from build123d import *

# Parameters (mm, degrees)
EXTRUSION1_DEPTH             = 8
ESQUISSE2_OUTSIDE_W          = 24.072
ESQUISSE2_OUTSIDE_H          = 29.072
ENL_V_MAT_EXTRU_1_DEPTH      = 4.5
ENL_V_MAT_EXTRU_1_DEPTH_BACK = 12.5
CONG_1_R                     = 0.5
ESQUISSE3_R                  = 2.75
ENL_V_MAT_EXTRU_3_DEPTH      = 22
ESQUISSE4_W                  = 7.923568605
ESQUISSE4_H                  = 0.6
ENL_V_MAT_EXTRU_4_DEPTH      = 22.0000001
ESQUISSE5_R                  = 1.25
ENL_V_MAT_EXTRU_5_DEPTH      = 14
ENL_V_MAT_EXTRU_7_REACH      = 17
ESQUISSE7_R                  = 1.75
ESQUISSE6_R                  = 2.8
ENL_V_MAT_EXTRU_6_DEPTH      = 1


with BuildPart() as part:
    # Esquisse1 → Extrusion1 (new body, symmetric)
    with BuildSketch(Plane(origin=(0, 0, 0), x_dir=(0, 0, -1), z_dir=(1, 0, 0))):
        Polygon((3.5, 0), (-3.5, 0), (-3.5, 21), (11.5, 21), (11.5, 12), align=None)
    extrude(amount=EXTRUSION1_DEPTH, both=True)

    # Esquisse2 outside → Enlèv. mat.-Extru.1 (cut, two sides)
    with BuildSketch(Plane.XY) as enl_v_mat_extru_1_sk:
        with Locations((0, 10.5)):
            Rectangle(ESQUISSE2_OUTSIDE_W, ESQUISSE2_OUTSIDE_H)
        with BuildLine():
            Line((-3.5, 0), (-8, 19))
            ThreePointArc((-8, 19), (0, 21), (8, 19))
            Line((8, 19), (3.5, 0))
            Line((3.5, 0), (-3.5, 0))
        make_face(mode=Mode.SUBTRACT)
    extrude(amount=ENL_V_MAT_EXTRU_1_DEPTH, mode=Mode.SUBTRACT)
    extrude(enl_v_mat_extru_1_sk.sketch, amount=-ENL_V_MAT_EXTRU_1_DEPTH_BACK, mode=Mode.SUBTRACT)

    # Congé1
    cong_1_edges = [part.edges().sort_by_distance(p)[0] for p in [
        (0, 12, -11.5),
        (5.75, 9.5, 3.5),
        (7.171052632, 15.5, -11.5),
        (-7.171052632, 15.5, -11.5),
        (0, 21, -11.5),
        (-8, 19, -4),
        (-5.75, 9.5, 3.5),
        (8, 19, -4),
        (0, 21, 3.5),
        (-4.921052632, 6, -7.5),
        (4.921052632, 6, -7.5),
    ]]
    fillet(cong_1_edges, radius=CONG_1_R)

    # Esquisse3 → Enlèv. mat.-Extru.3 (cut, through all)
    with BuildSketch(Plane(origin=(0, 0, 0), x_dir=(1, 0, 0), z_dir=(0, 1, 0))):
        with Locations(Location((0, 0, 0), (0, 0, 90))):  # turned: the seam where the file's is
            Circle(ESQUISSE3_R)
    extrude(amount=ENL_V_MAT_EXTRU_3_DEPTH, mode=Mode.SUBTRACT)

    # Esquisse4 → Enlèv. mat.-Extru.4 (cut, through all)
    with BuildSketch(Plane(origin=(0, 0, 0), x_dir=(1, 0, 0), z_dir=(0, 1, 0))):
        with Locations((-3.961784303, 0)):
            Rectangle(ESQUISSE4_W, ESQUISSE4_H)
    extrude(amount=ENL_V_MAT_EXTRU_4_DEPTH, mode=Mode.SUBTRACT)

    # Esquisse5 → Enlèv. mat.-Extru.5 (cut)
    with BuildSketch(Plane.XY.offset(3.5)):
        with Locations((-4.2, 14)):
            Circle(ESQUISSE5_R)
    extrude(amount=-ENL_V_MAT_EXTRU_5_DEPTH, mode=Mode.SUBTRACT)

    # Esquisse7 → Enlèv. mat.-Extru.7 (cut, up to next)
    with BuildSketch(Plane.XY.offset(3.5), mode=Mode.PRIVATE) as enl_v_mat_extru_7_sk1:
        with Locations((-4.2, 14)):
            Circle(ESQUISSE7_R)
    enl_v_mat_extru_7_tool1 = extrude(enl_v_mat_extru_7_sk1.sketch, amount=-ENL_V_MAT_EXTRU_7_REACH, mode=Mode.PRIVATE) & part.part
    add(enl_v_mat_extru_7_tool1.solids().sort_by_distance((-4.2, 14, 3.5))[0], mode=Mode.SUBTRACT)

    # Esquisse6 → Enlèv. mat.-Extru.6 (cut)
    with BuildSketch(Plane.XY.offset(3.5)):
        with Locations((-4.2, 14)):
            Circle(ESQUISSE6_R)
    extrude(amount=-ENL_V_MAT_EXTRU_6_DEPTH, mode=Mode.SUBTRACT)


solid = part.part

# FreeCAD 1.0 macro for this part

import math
import FreeCAD as App
import Part
import Sketcher


def edges_at(feature, points):
    """Names of the edges that pass closest to the given points."""
    edges = feature.Shape.Edges
    near = lambda p: min(range(len(edges)), key=lambda i: edges[i].distToShape(Part.Vertex(*p))[0])
    return sorted({f"Edge{near(p) + 1}" for p in points})


def add_polygon(sketch, points):
    """Adds a closed chain of lines whose ends are joined by coincident constraints."""
    first, n = sketch.GeometryCount, len(points)
    for a, b in zip(points, points[1:] + points[:1]):
        sketch.addGeometry(Part.LineSegment(App.Vector(*a, 0), App.Vector(*b, 0)), False)
    for i in range(n):
        sketch.addConstraint(Sketcher.Constraint("Coincident", first + i, 2, first + (i + 1) % n, 1))

doc = App.newDocument("Part")
body = doc.addObject("PartDesign::Body", "Body")

# Sketch on YZ plane
sketch1 = body.newObject("Sketcher::SketchObject", "Sketch")
sketch1.AttachmentSupport = (doc.getObject("YZ_Plane"), [""])
sketch1.MapMode = "FlatFace"
add_polygon(sketch1, [(0, 4), (0, -4), (12, -12), (21, -12), (21, 4)])  # lines 0-4
sketch1.addConstraint([
    Sketcher.Constraint("Vertical", 0),
    Sketcher.Constraint("Horizontal", 2),
    Sketcher.Constraint("Vertical", 3),
    Sketcher.Constraint("Horizontal", 4),
    Sketcher.Constraint("Symmetric", 0, 2, 4, 2, -1, 1),
    Sketcher.Constraint("DistanceX", 2, 1, 2, 2, 9.0),
    Sketcher.Constraint("DistanceX", 4, 2, 4, 1, 21.0),
    Sketcher.Constraint("DistanceY", 0, 2, 0, 1, 7.0),
    Sketcher.Constraint("DistanceY", 3, 1, 3, 2, 15.0),
])
pad1 = body.newObject("PartDesign::Pad", "Pad")
pad1.Profile = sketch1
pad1.Length = 16
pad1.Midplane = True

# Sketch on XY plane
sketch2 = body.newObject("Sketcher::SketchObject", "Sketch001")
sketch2.AttachmentSupport = (doc.getObject("XY_Plane"), [""])
sketch2.MapMode = "FlatFace"
add_polygon(sketch2, [(-12, 25), (-12, -4), (12, -4), (12, 25)])  # lines 0-3
sketch2.addGeometry(Part.LineSegment(App.Vector(4, 0, 0), App.Vector(-4, 0, 0)), False)  # 4
sketch2.addGeometry(Part.LineSegment(App.Vector(-4, 0, 0), App.Vector(-8, 19, 0)), False)  # 5
sketch2.addGeometry(Part.ArcOfCircle(Part.Circle(App.Vector(0, 4, 0), App.Vector(0, 0, 1), 17), math.radians(62), math.radians(118)), False)  # 6
sketch2.addGeometry(Part.LineSegment(App.Vector(8, 19, 0), App.Vector(4, 0, 0)), False)  # 7
sketch2.addConstraint([
    Sketcher.Constraint("Coincident", 4, 2, 5, 1),
    Sketcher.Constraint("Coincident", 5, 2, 6, 2),
    Sketcher.Constraint("Coincident", 6, 1, 7, 1),
    Sketcher.Constraint("Coincident", 7, 2, 4, 1),
    Sketcher.Constraint("Vertical", 0),
    Sketcher.Constraint("Horizontal", 1),
    Sketcher.Constraint("Vertical", 2),
    Sketcher.Constraint("Horizontal", 3),
    Sketcher.Constraint("Horizontal", 4),
    Sketcher.Constraint("Symmetric", 4, 2, 7, 2, -1, 1),
    Sketcher.Constraint("Symmetric", 5, 2, 6, 1, -2),
    Sketcher.Constraint("Radius", 6, 17.0),
    Sketcher.Constraint("DistanceX", 4, 2, 4, 1, 7.0),
    Sketcher.Constraint("DistanceY", -1, 1, 6, 3, 4.0),
    Sketcher.Constraint("DistanceX", 5, 2, -1, 1, 8.0),
    Sketcher.Constraint("DistanceX", 1, 1, 1, 2, 24.072),
    Sketcher.Constraint("DistanceY", 0, 2, 0, 1, 29.072),
    Sketcher.Constraint("DistanceX", 0, 2, -1, 1, 12.036),
    Sketcher.Constraint("DistanceY", 0, 2, -1, 1, 4.036),
])
pocket1 = body.newObject("PartDesign::Pocket", "Pocket")
pocket1.Profile = sketch2
pocket1.Type = "ThroughAll"
pocket1.Midplane = True
doc.recompute()

fillet = body.newObject("PartDesign::Fillet", "Fillet")
fillet.Base = (pocket1, edges_at(pocket1, [
    (0, 12, -11.5),
    (5.75, 9.5, 3.5),
    (7.171, 15.5, -11.5),
    (-7.171, 15.5, -11.5),
    (0, 21, -11.5),
    (-8, 19, -4),
    (-5.75, 9.5, 3.5),
    (8, 19, -4),
    (0, 21, 3.5),
    (-4.921, 6, -7.5),
    (4.921, 6, -7.5),
]))
fillet.Radius = 0.5

# Sketch on XZ plane
sketch3 = body.newObject("Sketcher::SketchObject", "Sketch002")
sketch3.AttachmentSupport = (doc.getObject("XZ_Plane"), [""])
sketch3.MapMode = "FlatFace"
sketch3.addGeometry(Part.Circle(App.Vector(0, 0, 0), App.Vector(0, 0, 1), 2.8), False)
sketch3.addConstraint([
    Sketcher.Constraint("Coincident", 0, 3, -1, 1),
    Sketcher.Constraint("Diameter", 0, 5.5),
])
pocket2 = body.newObject("PartDesign::Pocket", "Pocket001")
pocket2.Profile = sketch3
pocket2.Type = "ThroughAll"

# Sketch on XZ plane
sketch4 = body.newObject("Sketcher::SketchObject", "Sketch003")
sketch4.AttachmentSupport = (doc.getObject("XZ_Plane"), [""])
sketch4.MapMode = "FlatFace"
add_polygon(sketch4, [(-7.9, -0.3), (-7.9, 0.3), (0, 0.3), (0, -0.3)])  # lines 0-3
sketch4.addConstraint([
    Sketcher.Constraint("Vertical", 0),
    Sketcher.Constraint("Horizontal", 1),
    Sketcher.Constraint("Vertical", 2),
    Sketcher.Constraint("Horizontal", 3),
    Sketcher.Constraint("Symmetric", 1, 2, 2, 2, -1, 1),
    Sketcher.Constraint("DistanceY", 0, 1, 0, 2, 0.6),
    Sketcher.Constraint("DistanceX", 1, 1, 1, 2, 7.923569),
])
pocket3 = body.newObject("PartDesign::Pocket", "Pocket002")
pocket3.Profile = sketch4
pocket3.Type = "ThroughAll"

# Sketch on XY plane
sketch5 = body.newObject("Sketcher::SketchObject", "Sketch004")
sketch5.AttachmentSupport = (doc.getObject("XY_Plane"), [""])
sketch5.MapMode = "FlatFace"
sketch5.AttachmentOffset = App.Placement(App.Vector(0, 0, 3.5), App.Rotation())
sketch5.addGeometry(Part.Circle(App.Vector(-4.2, 14, 0), App.Vector(0, 0, 1), 1.2), False)
sketch5.addConstraint([
    Sketcher.Constraint("Diameter", 0, 2.5),
    Sketcher.Constraint("DistanceY", -1, 1, 0, 3, 14.0),
    Sketcher.Constraint("DistanceX", 0, 3, -1, 1, 4.2),
])
pocket4 = body.newObject("PartDesign::Pocket", "Pocket003")
pocket4.Profile = sketch5
pocket4.Length = 14

# Sketch on XY plane
sketch6 = body.newObject("Sketcher::SketchObject", "Sketch005")
sketch6.AttachmentSupport = (doc.getObject("XY_Plane"), [""])
sketch6.MapMode = "FlatFace"
sketch6.AttachmentOffset = App.Placement(App.Vector(0, 0, 3.5), App.Rotation())
sketch6.addGeometry(Part.Circle(App.Vector(-4.2, 14, 0), App.Vector(0, 0, 1), 1.8), False)
sketch6.addConstraint([
    Sketcher.Constraint("Diameter", 0, 3.5),
    Sketcher.Constraint("DistanceY", -1, 1, 0, 3, 14.0),
    Sketcher.Constraint("DistanceX", 0, 3, -1, 1, 4.2),
])
pocket5 = body.newObject("PartDesign::Pocket", "Pocket004")
pocket5.Profile = sketch6
pocket5.Length = 3.2

# Sketch on XY plane
sketch7 = body.newObject("Sketcher::SketchObject", "Sketch006")
sketch7.AttachmentSupport = (doc.getObject("XY_Plane"), [""])
sketch7.MapMode = "FlatFace"
sketch7.AttachmentOffset = App.Placement(App.Vector(0, 0, 3.5), App.Rotation())
sketch7.addGeometry(Part.Circle(App.Vector(-4.2, 14, 0), App.Vector(0, 0, 1), 2.8), False)
sketch7.addConstraint([
    Sketcher.Constraint("Diameter", 0, 5.6),
    Sketcher.Constraint("DistanceY", -1, 1, 0, 3, 14.0),
    Sketcher.Constraint("DistanceX", 0, 3, -1, 1, 4.2),
])
pocket6 = body.newObject("PartDesign::Pocket", "Pocket005")
pocket6.Profile = sketch7
pocket6.Length = 1

doc.recompute()
